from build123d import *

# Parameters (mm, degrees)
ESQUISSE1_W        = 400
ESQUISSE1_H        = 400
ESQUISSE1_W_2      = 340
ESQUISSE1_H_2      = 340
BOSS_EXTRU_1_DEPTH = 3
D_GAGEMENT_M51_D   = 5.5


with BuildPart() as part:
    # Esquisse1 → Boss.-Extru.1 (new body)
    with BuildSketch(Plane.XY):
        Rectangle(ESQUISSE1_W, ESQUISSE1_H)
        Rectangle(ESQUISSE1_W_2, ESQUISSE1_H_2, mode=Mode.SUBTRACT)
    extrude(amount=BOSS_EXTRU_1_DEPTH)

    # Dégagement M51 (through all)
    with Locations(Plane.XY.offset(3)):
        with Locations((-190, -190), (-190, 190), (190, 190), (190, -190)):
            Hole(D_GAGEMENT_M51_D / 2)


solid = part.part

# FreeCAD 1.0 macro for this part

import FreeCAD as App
import Part
import Sketcher
from FreeCAD import Vector
Q = App.Units.Quantity

doc = App.newDocument("Part")
body = doc.addObject("PartDesign::Body", "Body")

sketch1 = body.newObject("Sketcher::SketchObject", "Sketch")
sketch1.AttachmentSupport = (doc.getObject("XY_Plane"), [""])
sketch1.MapMode = "FlatFace"
sketch1.addGeometry([
    Part.LineSegment(Vector(-200, 200, 0), Vector(-200, -200, 0)),
    Part.LineSegment(Vector(-200, -200, 0), Vector(200, -200, 0)),
    Part.LineSegment(Vector(200, -200, 0), Vector(200, 200, 0)),
    Part.LineSegment(Vector(200, 200, 0), Vector(-200, 200, 0)),
    Part.LineSegment(Vector(170, -170, 0), Vector(-170, -170, 0)),
    Part.LineSegment(Vector(-170, -170, 0), Vector(-170, 170, 0)),
    Part.LineSegment(Vector(-170, 170, 0), Vector(170, 170, 0)),
    Part.LineSegment(Vector(170, 170, 0), Vector(170, -170, 0)),
], False)
sketch1.addConstraint([
    Sketcher.Constraint("Coincident", 0, 2, 1, 1),
    Sketcher.Constraint("Coincident", 1, 2, 2, 1),
    Sketcher.Constraint("Coincident", 2, 2, 3, 1),
    Sketcher.Constraint("Coincident", 3, 2, 0, 1),
    Sketcher.Constraint("Coincident", 4, 2, 5, 1),
    Sketcher.Constraint("Coincident", 5, 2, 6, 1),
    Sketcher.Constraint("Coincident", 6, 2, 7, 1),
    Sketcher.Constraint("Coincident", 7, 2, 4, 1),
    Sketcher.Constraint("Vertical", 0),
    Sketcher.Constraint("Horizontal", 1),
    Sketcher.Constraint("Vertical", 2),
    Sketcher.Constraint("Horizontal", 3),
    Sketcher.Constraint("Horizontal", 4),
    Sketcher.Constraint("Vertical", 5),
    Sketcher.Constraint("Horizontal", 6),
    Sketcher.Constraint("Vertical", 7),
    Sketcher.Constraint("Symmetric", 0, 2, 2, 2, -1, 1),
    Sketcher.Constraint("Symmetric", 4, 2, 6, 2, -1, 1),
    Sketcher.Constraint("Equal", 3, 0),
    Sketcher.Constraint("Equal", 6, 5),
    Sketcher.Constraint("DistanceX", 1, 1, 1, 2, Q("400 mm")),
    Sketcher.Constraint("DistanceX", 4, 2, 4, 1, Q("340 mm")),
])
pad1 = body.newObject("PartDesign::Pad", "Pad")
pad1.Profile = sketch1
pad1.Length = 3

sketch2 = body.newObject("Sketcher::SketchObject", "Sketch001")
sketch2.AttachmentSupport = (doc.getObject("XY_Plane"), [""])
sketch2.MapMode = "FlatFace"
sketch2.AttachmentOffset = App.Placement(Vector(0, 0, 3), App.Rotation())
sketch2.addGeometry([
    Part.Circle(Vector(-190, -190, 0), Vector(0, 0, 1), 2.75),
    Part.Circle(Vector(-190, 190, 0), Vector(0, 0, 1), 2.75),
    Part.Circle(Vector(190, 190, 0), Vector(0, 0, 1), 2.75),
    Part.Circle(Vector(190, -190, 0), Vector(0, 0, 1), 2.75),
], False)
sketch2.addConstraint([
    Sketcher.Constraint("Equal", 0, 1),
    Sketcher.Constraint("Equal", 1, 2),
    Sketcher.Constraint("Equal", 2, 3),
    Sketcher.Constraint("Symmetric", 0, 3, 2, 3, -1, 1),
    Sketcher.Constraint("Symmetric", 1, 3, 3, 3, -1, 1),
    Sketcher.Constraint("Symmetric", 1, 3, 2, 3, -2),
    Sketcher.Constraint("Diameter", 0, Q("5.5 mm")),
    Sketcher.Constraint("DistanceX", 0, 3, -1, 1, Q("190 mm")),
    Sketcher.Constraint("DistanceY", 0, 3, -1, 1, Q("190 mm")),
])
doc.recompute()
hole = body.newObject("PartDesign::Hole", "Hole")
hole.Profile = sketch2
hole.ThreadType = "None"
hole.Diameter = 5.5
hole.DepthType = "ThroughAll"

doc.recompute()
